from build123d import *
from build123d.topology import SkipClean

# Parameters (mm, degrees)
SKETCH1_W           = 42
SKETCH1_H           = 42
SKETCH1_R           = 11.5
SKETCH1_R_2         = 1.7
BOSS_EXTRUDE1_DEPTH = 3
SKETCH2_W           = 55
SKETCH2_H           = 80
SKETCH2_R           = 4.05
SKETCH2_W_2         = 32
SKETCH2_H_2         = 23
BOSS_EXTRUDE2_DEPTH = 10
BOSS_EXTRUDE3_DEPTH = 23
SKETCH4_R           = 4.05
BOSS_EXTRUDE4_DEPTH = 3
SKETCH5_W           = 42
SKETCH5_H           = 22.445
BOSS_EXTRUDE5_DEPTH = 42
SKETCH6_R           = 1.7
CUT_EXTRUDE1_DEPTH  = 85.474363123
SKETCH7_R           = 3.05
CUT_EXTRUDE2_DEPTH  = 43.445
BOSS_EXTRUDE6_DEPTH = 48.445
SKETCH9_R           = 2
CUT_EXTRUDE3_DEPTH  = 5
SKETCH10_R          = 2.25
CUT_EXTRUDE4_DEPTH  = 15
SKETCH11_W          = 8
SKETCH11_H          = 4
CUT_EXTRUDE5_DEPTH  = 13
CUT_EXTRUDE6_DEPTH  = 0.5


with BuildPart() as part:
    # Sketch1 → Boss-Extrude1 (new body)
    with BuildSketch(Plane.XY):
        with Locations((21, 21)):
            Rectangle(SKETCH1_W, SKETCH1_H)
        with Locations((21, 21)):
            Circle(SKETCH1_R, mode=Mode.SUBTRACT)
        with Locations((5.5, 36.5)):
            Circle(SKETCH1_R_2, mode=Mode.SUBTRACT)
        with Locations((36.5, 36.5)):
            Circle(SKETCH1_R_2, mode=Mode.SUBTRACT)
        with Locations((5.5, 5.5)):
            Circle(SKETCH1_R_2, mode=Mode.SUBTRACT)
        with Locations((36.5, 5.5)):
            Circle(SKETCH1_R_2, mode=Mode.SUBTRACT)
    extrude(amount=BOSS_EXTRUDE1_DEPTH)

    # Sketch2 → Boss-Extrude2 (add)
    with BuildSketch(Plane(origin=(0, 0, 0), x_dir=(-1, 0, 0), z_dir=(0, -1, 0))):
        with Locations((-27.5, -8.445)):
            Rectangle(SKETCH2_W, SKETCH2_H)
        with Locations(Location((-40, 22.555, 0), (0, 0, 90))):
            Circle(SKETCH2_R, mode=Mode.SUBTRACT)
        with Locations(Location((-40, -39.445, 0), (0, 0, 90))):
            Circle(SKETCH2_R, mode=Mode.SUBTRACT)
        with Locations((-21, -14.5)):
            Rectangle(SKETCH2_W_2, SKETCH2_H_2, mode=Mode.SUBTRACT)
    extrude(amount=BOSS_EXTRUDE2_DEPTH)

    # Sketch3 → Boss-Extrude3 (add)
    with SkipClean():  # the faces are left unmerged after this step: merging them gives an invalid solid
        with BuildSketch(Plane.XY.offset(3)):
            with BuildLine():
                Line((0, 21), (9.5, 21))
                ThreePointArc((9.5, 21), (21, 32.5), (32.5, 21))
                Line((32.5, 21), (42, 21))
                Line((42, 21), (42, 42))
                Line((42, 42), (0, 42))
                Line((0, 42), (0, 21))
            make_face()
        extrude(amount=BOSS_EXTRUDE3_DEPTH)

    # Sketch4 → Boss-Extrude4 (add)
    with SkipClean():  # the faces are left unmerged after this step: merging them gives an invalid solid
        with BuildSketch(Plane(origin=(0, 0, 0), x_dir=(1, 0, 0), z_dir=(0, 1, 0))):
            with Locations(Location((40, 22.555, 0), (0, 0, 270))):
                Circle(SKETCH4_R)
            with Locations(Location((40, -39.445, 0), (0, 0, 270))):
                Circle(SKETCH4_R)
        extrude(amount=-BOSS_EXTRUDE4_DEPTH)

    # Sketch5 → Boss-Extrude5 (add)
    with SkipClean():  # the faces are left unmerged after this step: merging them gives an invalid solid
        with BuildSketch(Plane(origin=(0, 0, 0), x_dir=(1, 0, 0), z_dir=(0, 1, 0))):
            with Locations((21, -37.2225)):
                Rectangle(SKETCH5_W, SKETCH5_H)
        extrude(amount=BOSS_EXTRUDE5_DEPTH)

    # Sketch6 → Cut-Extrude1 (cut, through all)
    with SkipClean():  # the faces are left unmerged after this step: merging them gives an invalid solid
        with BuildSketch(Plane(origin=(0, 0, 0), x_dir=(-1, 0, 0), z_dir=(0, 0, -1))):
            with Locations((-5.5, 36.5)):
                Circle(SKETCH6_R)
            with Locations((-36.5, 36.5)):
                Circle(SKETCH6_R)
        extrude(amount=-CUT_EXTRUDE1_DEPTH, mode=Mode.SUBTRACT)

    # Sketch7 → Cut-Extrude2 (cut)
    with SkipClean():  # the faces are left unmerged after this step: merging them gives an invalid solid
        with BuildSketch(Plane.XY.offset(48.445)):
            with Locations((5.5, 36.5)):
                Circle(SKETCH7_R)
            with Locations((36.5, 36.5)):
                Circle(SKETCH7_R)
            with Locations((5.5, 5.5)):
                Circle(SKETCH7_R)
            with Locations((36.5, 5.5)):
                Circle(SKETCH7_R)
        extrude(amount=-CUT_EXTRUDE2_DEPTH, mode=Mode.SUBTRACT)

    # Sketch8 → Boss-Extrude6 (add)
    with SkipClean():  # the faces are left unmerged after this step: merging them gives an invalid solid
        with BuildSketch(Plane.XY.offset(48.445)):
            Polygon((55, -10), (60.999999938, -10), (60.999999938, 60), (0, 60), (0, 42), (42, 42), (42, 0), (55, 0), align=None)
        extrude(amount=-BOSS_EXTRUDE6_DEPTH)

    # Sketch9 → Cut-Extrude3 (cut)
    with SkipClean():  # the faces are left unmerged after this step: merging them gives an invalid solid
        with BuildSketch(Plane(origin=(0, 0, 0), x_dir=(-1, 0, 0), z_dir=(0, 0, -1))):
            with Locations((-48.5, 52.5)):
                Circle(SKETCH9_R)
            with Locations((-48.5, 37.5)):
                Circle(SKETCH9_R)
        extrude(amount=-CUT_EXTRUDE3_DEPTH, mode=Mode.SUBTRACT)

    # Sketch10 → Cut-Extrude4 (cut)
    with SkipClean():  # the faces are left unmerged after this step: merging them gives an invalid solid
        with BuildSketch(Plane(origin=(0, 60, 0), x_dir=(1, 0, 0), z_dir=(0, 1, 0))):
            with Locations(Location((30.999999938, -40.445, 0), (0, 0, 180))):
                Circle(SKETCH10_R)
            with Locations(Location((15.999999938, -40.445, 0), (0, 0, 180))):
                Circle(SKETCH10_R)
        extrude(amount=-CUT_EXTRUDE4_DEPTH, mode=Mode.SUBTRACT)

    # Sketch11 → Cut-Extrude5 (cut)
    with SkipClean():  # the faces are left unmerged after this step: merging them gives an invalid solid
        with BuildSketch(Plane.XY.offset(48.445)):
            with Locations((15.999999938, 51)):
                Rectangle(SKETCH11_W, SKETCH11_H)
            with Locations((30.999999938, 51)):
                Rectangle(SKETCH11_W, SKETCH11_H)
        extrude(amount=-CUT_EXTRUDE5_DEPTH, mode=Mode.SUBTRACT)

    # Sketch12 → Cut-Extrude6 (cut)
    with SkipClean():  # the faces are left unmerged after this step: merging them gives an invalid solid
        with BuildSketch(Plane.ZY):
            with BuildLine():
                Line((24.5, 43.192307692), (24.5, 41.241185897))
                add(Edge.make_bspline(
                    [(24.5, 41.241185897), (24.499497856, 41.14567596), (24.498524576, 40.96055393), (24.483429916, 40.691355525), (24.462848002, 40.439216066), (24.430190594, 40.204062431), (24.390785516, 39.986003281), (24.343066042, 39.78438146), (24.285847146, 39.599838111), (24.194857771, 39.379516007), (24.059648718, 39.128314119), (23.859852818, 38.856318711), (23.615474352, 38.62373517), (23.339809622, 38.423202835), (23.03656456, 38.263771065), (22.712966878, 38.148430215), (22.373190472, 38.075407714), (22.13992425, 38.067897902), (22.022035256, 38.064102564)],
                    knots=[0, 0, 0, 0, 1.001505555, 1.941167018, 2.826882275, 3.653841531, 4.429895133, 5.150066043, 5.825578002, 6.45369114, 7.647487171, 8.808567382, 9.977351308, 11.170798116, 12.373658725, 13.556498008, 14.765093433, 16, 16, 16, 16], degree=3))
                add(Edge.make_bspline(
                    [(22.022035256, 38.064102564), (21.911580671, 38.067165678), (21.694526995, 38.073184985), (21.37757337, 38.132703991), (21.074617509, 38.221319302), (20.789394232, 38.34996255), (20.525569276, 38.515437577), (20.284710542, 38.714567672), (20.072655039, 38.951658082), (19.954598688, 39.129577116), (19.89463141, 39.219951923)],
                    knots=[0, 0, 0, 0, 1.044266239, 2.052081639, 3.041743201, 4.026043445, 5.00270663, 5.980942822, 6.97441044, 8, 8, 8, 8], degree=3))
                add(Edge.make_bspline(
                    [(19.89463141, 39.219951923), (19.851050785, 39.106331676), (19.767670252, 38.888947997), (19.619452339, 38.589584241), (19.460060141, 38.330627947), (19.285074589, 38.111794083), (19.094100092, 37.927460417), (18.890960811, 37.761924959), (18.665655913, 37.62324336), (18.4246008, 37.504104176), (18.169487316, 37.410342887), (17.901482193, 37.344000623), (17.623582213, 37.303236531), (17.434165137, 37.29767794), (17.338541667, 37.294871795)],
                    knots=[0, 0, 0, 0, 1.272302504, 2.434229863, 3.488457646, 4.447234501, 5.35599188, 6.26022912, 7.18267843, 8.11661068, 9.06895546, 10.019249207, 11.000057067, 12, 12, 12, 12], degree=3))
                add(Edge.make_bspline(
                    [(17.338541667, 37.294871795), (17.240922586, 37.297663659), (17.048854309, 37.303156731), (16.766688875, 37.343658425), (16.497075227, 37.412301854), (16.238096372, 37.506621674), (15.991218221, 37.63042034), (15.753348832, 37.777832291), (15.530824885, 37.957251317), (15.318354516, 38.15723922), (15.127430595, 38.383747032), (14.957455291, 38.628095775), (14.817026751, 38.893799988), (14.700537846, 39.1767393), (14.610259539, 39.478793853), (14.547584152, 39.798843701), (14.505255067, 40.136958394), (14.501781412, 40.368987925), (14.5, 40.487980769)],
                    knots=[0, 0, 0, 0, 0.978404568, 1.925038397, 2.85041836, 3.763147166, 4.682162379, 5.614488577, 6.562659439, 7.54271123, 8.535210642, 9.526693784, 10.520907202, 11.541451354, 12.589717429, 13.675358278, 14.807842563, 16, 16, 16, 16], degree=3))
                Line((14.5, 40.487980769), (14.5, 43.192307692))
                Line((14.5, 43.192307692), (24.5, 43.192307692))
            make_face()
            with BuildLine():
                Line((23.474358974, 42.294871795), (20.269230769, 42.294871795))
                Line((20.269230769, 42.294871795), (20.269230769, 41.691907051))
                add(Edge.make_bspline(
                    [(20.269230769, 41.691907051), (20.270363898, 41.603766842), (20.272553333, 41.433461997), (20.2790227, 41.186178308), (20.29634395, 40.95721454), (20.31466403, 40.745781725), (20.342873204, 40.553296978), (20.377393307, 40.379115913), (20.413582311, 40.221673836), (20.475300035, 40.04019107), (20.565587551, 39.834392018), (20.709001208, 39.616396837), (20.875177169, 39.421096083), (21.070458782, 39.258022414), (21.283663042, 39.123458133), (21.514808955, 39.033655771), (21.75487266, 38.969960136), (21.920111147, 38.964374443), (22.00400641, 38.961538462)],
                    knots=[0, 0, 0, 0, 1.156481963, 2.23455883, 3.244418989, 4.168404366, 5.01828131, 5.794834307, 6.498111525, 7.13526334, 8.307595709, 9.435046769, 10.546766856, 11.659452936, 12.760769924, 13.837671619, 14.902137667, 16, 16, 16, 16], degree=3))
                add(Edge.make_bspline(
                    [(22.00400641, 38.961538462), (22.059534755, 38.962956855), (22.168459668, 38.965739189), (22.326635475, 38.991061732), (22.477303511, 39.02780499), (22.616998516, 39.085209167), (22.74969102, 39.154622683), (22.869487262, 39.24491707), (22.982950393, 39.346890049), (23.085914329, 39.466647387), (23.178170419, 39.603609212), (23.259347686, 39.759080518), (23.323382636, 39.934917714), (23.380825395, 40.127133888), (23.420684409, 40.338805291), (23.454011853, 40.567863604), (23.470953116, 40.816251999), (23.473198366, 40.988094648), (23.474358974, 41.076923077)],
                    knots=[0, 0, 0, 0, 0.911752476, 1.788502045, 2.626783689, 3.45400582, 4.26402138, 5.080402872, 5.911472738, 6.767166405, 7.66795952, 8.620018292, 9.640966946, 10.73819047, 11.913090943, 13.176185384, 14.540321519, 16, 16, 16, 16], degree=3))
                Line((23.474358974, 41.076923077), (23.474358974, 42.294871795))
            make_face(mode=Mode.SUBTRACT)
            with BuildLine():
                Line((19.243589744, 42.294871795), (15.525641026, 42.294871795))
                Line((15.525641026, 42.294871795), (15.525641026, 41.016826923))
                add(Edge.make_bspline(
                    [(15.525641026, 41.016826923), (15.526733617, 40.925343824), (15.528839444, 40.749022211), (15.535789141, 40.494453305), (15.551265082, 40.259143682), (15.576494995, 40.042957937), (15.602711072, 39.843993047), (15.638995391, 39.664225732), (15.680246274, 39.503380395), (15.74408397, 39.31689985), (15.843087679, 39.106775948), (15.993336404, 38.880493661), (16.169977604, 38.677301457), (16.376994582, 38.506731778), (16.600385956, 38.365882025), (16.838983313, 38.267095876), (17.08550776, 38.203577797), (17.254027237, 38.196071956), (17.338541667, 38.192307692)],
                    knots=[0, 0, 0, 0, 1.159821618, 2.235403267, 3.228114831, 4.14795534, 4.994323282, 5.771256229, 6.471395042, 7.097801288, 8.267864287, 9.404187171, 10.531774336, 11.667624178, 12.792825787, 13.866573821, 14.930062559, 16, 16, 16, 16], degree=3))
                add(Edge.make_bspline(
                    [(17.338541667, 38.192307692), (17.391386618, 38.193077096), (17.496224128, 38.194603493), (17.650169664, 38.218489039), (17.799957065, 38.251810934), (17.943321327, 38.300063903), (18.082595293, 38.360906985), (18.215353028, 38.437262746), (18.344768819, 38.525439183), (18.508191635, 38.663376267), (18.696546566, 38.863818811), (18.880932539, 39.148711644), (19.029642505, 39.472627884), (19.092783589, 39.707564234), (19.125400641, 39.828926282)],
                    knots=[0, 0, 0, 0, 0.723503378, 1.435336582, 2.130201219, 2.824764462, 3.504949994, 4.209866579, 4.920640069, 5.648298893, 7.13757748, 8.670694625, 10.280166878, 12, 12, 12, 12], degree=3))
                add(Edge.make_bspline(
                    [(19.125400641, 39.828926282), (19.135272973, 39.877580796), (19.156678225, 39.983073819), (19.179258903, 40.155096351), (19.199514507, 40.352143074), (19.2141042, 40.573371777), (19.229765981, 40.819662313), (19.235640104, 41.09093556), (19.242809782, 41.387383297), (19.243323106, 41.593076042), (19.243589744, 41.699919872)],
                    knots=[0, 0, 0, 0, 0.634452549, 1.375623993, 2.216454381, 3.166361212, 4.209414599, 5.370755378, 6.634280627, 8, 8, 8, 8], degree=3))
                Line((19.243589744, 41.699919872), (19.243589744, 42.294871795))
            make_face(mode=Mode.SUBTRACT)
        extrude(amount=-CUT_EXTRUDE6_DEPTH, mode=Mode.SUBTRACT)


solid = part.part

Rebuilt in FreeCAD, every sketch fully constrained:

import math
import FreeCAD as App
import Part
import Sketcher

doc = App.newDocument("Part")
body = doc.addObject("PartDesign::Body", "Body")

# Sketch on XY plane
sketch1 = doc.addObject("Sketcher::SketchObject", "Sketch")
body.addObject(sketch1)
sketch1.AttachmentSupport = (doc.XY_Plane, [""])
sketch1.MapMode = "FlatFace"
sketch1.addGeometry(Part.LineSegment(App.Vector(0, 42, 0), App.Vector(0, 0, 0)), False)
sketch1.addGeometry(Part.LineSegment(App.Vector(0, 0, 0), App.Vector(42, 0, 0)), False)
sketch1.addGeometry(Part.LineSegment(App.Vector(42, 0, 0), App.Vector(42, 42, 0)), False)
sketch1.addGeometry(Part.LineSegment(App.Vector(42, 42, 0), App.Vector(0, 42, 0)), False)
sketch1.addGeometry(Part.Circle(App.Vector(5.5, 5.5, 0), App.Vector(0, 0, 1), 1.7), False)
sketch1.addGeometry(Part.Circle(App.Vector(36.5, 5.5, 0), App.Vector(0, 0, 1), 1.7), False)
sketch1.addGeometry(Part.Circle(App.Vector(5.5, 36.5, 0), App.Vector(0, 0, 1), 1.7), False)
sketch1.addGeometry(Part.Circle(App.Vector(21, 21, 0), App.Vector(0, 0, 1), 11.5), False)
sketch1.addGeometry(Part.Circle(App.Vector(36.5, 36.5, 0), App.Vector(0, 0, 1), 1.7), False)
sketch1.addConstraint(Sketcher.Constraint("Coincident", 0, 2, 1, 1))
sketch1.addConstraint(Sketcher.Constraint("Coincident", 1, 2, 2, 1))
sketch1.addConstraint(Sketcher.Constraint("Coincident", 2, 2, 3, 1))
sketch1.addConstraint(Sketcher.Constraint("Coincident", 3, 2, 0, 1))
sketch1.addConstraint(Sketcher.Constraint("Vertical", 0))
sketch1.addConstraint(Sketcher.Constraint("Horizontal", 1))
sketch1.addConstraint(Sketcher.Constraint("Vertical", 2))
sketch1.addConstraint(Sketcher.Constraint("Horizontal", 3))
sketch1.addConstraint(Sketcher.Constraint("Coincident", 0, 2, -1, 1))
sketch1.addConstraint(Sketcher.Constraint("Equal", 4, 5))
sketch1.addConstraint(Sketcher.Constraint("Equal", 5, 6))
sketch1.addConstraint(Sketcher.Constraint("Equal", 6, 8))
sketch1.addConstraint(Sketcher.Constraint("Horizontal", 4, 3, 5, 3))
sketch1.addConstraint(Sketcher.Constraint("Horizontal", 6, 3, 8, 3))
sketch1.addConstraint(Sketcher.Constraint("Vertical", 4, 3, 6, 3))
sketch1.addConstraint(Sketcher.Constraint("Vertical", 5, 3, 8, 3))
sketch1.addConstraint(Sketcher.Constraint("Equal", 3, 0))
sketch1.addConstraint(Sketcher.Constraint("Diameter", 7, 23.0))
sketch1.addConstraint(Sketcher.Constraint("Diameter", 4, 3.4))
sketch1.addConstraint(Sketcher.Constraint("DistanceX", 1, 1, 1, 2, 42.0))
sketch1.addConstraint(Sketcher.Constraint("DistanceX", -1, 1, 7, 3, 21.0))
sketch1.addConstraint(Sketcher.Constraint("DistanceY", -1, 1, 7, 3, 21.0))
sketch1.addConstraint(Sketcher.Constraint("DistanceX", 4, 3, 5, 3, 31.0))
sketch1.addConstraint(Sketcher.Constraint("DistanceY", 4, 3, 6, 3, 31.0))
sketch1.addConstraint(Sketcher.Constraint("DistanceX", -1, 1, 4, 3, 5.5))
sketch1.addConstraint(Sketcher.Constraint("DistanceY", -1, 1, 4, 3, 5.5))
pad1 = doc.addObject("PartDesign::Pad", "Pad")
body.addObject(pad1)
pad1.Profile = sketch1
pad1.Length = 3

# Sketch on XZ plane
sketch2 = doc.addObject("Sketcher::SketchObject", "Sketch001")
body.addObject(sketch2)
sketch2.AttachmentSupport = (doc.XZ_Plane, [""])
sketch2.MapMode = "FlatFace"
sketch2.addGeometry(Part.LineSegment(App.Vector(55, -31.6, 0), App.Vector(55, 48.4, 0)), False)
sketch2.addGeometry(Part.LineSegment(App.Vector(55, 48.4, 0), App.Vector(0, 48.4, 0)), False)
sketch2.addGeometry(Part.LineSegment(App.Vector(0, 48.4, 0), App.Vector(0, -31.6, 0)), False)
sketch2.addGeometry(Part.LineSegment(App.Vector(0, -31.6, 0), App.Vector(55, -31.6, 0)), False)
sketch2.addGeometry(Part.Circle(App.Vector(40, 39.4, 0), App.Vector(0, 0, 1), 4), False)
sketch2.addGeometry(Part.LineSegment(App.Vector(5, 26, 0), App.Vector(37, 26, 0)), False)
sketch2.addGeometry(Part.LineSegment(App.Vector(37, 26, 0), App.Vector(37, 3, 0)), False)
sketch2.addGeometry(Part.LineSegment(App.Vector(37, 3, 0), App.Vector(5, 3, 0)), False)
sketch2.addGeometry(Part.LineSegment(App.Vector(5, 3, 0), App.Vector(5, 26, 0)), False)
sketch2.addGeometry(Part.Circle(App.Vector(40, -22.6, 0), App.Vector(0, 0, 1), 4), False)
sketch2.addConstraint(Sketcher.Constraint("Coincident", 0, 2, 1, 1))
sketch2.addConstraint(Sketcher.Constraint("Coincident", 1, 2, 2, 1))
sketch2.addConstraint(Sketcher.Constraint("Coincident", 2, 2, 3, 1))
sketch2.addConstraint(Sketcher.Constraint("Coincident", 3, 2, 0, 1))
sketch2.addConstraint(Sketcher.Constraint("Coincident", 5, 2, 6, 1))
sketch2.addConstraint(Sketcher.Constraint("Coincident", 6, 2, 7, 1))
sketch2.addConstraint(Sketcher.Constraint("Coincident", 7, 2, 8, 1))
sketch2.addConstraint(Sketcher.Constraint("Coincident", 8, 2, 5, 1))
sketch2.addConstraint(Sketcher.Constraint("Vertical", 0))
sketch2.addConstraint(Sketcher.Constraint("Horizontal", 1))
sketch2.addConstraint(Sketcher.Constraint("Vertical", 2))
sketch2.addConstraint(Sketcher.Constraint("Horizontal", 3))
sketch2.addConstraint(Sketcher.Constraint("Horizontal", 5))
sketch2.addConstraint(Sketcher.Constraint("Vertical", 6))
sketch2.addConstraint(Sketcher.Constraint("Horizontal", 7))
sketch2.addConstraint(Sketcher.Constraint("Vertical", 8))
sketch2.addConstraint(Sketcher.Constraint("Equal", 4, 9))
sketch2.addConstraint(Sketcher.Constraint("PointOnObject", 1, 2, -2))
sketch2.addConstraint(Sketcher.Constraint("Vertical", 4, 3, 9, 3))
sketch2.addConstraint(Sketcher.Constraint("Diameter", 4, 8.1))
sketch2.addConstraint(Sketcher.Constraint("DistanceX", 1, 2, 1, 1, 55.0))
sketch2.addConstraint(Sketcher.Constraint("DistanceX", 5, 1, 5, 2, 32.0))
sketch2.addConstraint(Sketcher.Constraint("DistanceY", 0, 1, 0, 2, 80.0))
sketch2.addConstraint(Sketcher.Constraint("DistanceY", 6, 2, 6, 1, 23.0))
sketch2.addConstraint(Sketcher.Constraint("DistanceX", -1, 1, 4, 3, 40.0))
sketch2.addConstraint(Sketcher.Constraint("DistanceX", -1, 1, 5, 2, 37.0))
sketch2.addConstraint(Sketcher.Constraint("DistanceY", -1, 1, 5, 2, 26.0))
sketch2.addConstraint(Sketcher.Constraint("DistanceY", 9, 3, 4, 3, 62.0))
sketch2.addConstraint(Sketcher.Constraint("DistanceY", 4, 3, 0, 2, 9.0))
sketch2.addConstraint(Sketcher.Constraint("DistanceY", -1, 1, 4, 3, 39.445))
pad2 = doc.addObject("PartDesign::Pad", "Pad001")
body.addObject(pad2)
pad2.Profile = sketch2
pad2.Length = 10

# Sketch on XY plane
sketch3 = doc.addObject("Sketcher::SketchObject", "Sketch002")
body.addObject(sketch3)
sketch3.AttachmentSupport = (doc.XY_Plane, [""])
sketch3.MapMode = "FlatFace"
sketch3.AttachmentOffset = App.Placement(App.Vector(0, 0, 3), App.Rotation())
sketch3.addGeometry(Part.LineSegment(App.Vector(0, 21, 0), App.Vector(10, 21, 0)), False)
sketch3.addGeometry(Part.ArcOfCircle(Part.Circle(App.Vector(21, 21, 0), App.Vector(0, 0, 1), 12), math.radians(0), math.radians(180)), False)
sketch3.addGeometry(Part.LineSegment(App.Vector(32, 21, 0), App.Vector(42, 21, 0)), False)
sketch3.addGeometry(Part.LineSegment(App.Vector(42, 21, 0), App.Vector(42, 42, 0)), False)
sketch3.addGeometry(Part.LineSegment(App.Vector(42, 42, 0), App.Vector(0, 42, 0)), False)
sketch3.addGeometry(Part.LineSegment(App.Vector(0, 42, 0), App.Vector(0, 21, 0)), False)
sketch3.addConstraint(Sketcher.Constraint("Coincident", 0, 2, 1, 2))
sketch3.addConstraint(Sketcher.Constraint("Coincident", 1, 1, 2, 1))
sketch3.addConstraint(Sketcher.Constraint("Coincident", 2, 2, 3, 1))
sketch3.addConstraint(Sketcher.Constraint("Coincident", 3, 2, 4, 1))
sketch3.addConstraint(Sketcher.Constraint("Coincident", 4, 2, 5, 1))
sketch3.addConstraint(Sketcher.Constraint("Coincident", 5, 2, 0, 1))
sketch3.addConstraint(Sketcher.Constraint("Horizontal", 0))
sketch3.addConstraint(Sketcher.Constraint("Horizontal", 2))
sketch3.addConstraint(Sketcher.Constraint("Vertical", 3))
sketch3.addConstraint(Sketcher.Constraint("Horizontal", 4))
sketch3.addConstraint(Sketcher.Constraint("Vertical", 5))
sketch3.addConstraint(Sketcher.Constraint("PointOnObject", 4, 2, -2))
sketch3.addConstraint(Sketcher.Constraint("Horizontal", 1, 3, 0, 2))
sketch3.addConstraint(Sketcher.Constraint("Horizontal", 0, 2, 1, 1))
sketch3.addConstraint(Sketcher.Constraint("Equal", 0, 2))
sketch3.addConstraint(Sketcher.Constraint("Radius", 1, 11.5))
sketch3.addConstraint(Sketcher.Constraint("DistanceX", 4, 2, 4, 1, 42.0))
sketch3.addConstraint(Sketcher.Constraint("DistanceY", 3, 1, 3, 2, 21.0))
sketch3.addConstraint(Sketcher.Constraint("DistanceY", -1, 1, 1, 3, 21.0))
pad3 = doc.addObject("PartDesign::Pad", "Pad002")
body.addObject(pad3)
pad3.Profile = sketch3
pad3.Length = 23

# Sketch on XZ plane
sketch4 = doc.addObject("Sketcher::SketchObject", "Sketch003")
body.addObject(sketch4)
sketch4.AttachmentSupport = (doc.XZ_Plane, [""])
sketch4.MapMode = "FlatFace"
sketch4.addGeometry(Part.Circle(App.Vector(40, -22.6, 0), App.Vector(0, 0, 1), 4), False)
sketch4.addGeometry(Part.Circle(App.Vector(40, 39.4, 0), App.Vector(0, 0, 1), 4), False)
sketch4.addConstraint(Sketcher.Constraint("Equal", 0, 1))
sketch4.addConstraint(Sketcher.Constraint("Vertical", 0, 3, 1, 3))
sketch4.addConstraint(Sketcher.Constraint("Diameter", 0, 8.1))
sketch4.addConstraint(Sketcher.Constraint("DistanceX", -1, 1, 0, 3, 40.0))
sketch4.addConstraint(Sketcher.Constraint("DistanceY", 0, 3, 1, 3, 62.0))
sketch4.addConstraint(Sketcher.Constraint("DistanceY", 0, 3, -1, 1, 22.555))
pad4 = doc.addObject("PartDesign::Pad", "Pad003")
body.addObject(pad4)
pad4.Profile = sketch4
pad4.Length = 3

# Sketch on XZ plane
sketch5 = doc.addObject("Sketcher::SketchObject", "Sketch004")
body.addObject(sketch5)
sketch5.AttachmentSupport = (doc.XZ_Plane, [""])
sketch5.MapMode = "FlatFace"
sketch5.addGeometry(Part.LineSegment(App.Vector(0, 26, 0), App.Vector(0, 48, 0)), False)
sketch5.addGeometry(Part.LineSegment(App.Vector(0, 48, 0), App.Vector(42, 48, 0)), False)
sketch5.addGeometry(Part.LineSegment(App.Vector(42, 48, 0), App.Vector(42, 26, 0)), False)
sketch5.addGeometry(Part.LineSegment(App.Vector(42, 26, 0), App.Vector(0, 26, 0)), False)
sketch5.addConstraint(Sketcher.Constraint("Coincident", 0, 2, 1, 1))
sketch5.addConstraint(Sketcher.Constraint("Coincident", 1, 2, 2, 1))
sketch5.addConstraint(Sketcher.Constraint("Coincident", 2, 2, 3, 1))
sketch5.addConstraint(Sketcher.Constraint("Coincident", 3, 2, 0, 1))
sketch5.addConstraint(Sketcher.Constraint("Vertical", 0))
sketch5.addConstraint(Sketcher.Constraint("Horizontal", 1))
sketch5.addConstraint(Sketcher.Constraint("Vertical", 2))
sketch5.addConstraint(Sketcher.Constraint("Horizontal", 3))
sketch5.addConstraint(Sketcher.Constraint("PointOnObject", 0, 2, -2))
sketch5.addConstraint(Sketcher.Constraint("DistanceX", 1, 1, 1, 2, 42.0))
sketch5.addConstraint(Sketcher.Constraint("DistanceY", -1, 1, 2, 2, 26.0))
sketch5.addConstraint(Sketcher.Constraint("DistanceY", 0, 1, 0, 2, 22.445))
pad5 = doc.addObject("PartDesign::Pad", "Pad004")
body.addObject(pad5)
pad5.Profile = sketch5
pad5.Length = 42
pad5.Reversed = True

# Sketch on XY plane
sketch6 = doc.addObject("Sketcher::SketchObject", "Sketch005")
body.addObject(sketch6)
sketch6.AttachmentSupport = (doc.XY_Plane, [""])
sketch6.MapMode = "FlatFace"
sketch6.addGeometry(Part.Circle(App.Vector(5.5, 36.5, 0), App.Vector(0, 0, 1), 1.7), False)
sketch6.addGeometry(Part.Circle(App.Vector(36.5, 36.5, 0), App.Vector(0, 0, 1), 1.7), False)
sketch6.addConstraint(Sketcher.Constraint("Equal", 0, 1))
sketch6.addConstraint(Sketcher.Constraint("Horizontal", 0, 3, 1, 3))
sketch6.addConstraint(Sketcher.Constraint("Diameter", 0, 3.4))
sketch6.addConstraint(Sketcher.Constraint("DistanceX", 0, 3, 1, 3, 31.0))
sketch6.addConstraint(Sketcher.Constraint("DistanceX", -1, 1, 0, 3, 5.5))
sketch6.addConstraint(Sketcher.Constraint("DistanceY", -1, 1, 0, 3, 36.5))
pocket1 = doc.addObject("PartDesign::Pocket", "Pocket")
body.addObject(pocket1)
pocket1.Profile = sketch6
pocket1.Type = "ThroughAll"
pocket1.Reversed = True

# Sketch on XY plane
sketch7 = doc.addObject("Sketcher::SketchObject", "Sketch006")
body.addObject(sketch7)
sketch7.AttachmentSupport = (doc.XY_Plane, [""])
sketch7.MapMode = "FlatFace"
sketch7.AttachmentOffset = App.Placement(App.Vector(0, 0, 48.445), App.Rotation())
sketch7.addGeometry(Part.Circle(App.Vector(5.5, 36.5, 0), App.Vector(0, 0, 1), 3), False)
sketch7.addGeometry(Part.Circle(App.Vector(36.5, 36.5, 0), App.Vector(0, 0, 1), 3), False)
sketch7.addGeometry(Part.Circle(App.Vector(5.5, 5.5, 0), App.Vector(0, 0, 1), 3), False)
sketch7.addGeometry(Part.Circle(App.Vector(36.5, 5.5, 0), App.Vector(0, 0, 1), 3), False)
sketch7.addConstraint(Sketcher.Constraint("Equal", 0, 1))
sketch7.addConstraint(Sketcher.Constraint("Equal", 1, 2))
sketch7.addConstraint(Sketcher.Constraint("Equal", 2, 3))
sketch7.addConstraint(Sketcher.Constraint("Horizontal", 0, 3, 1, 3))
sketch7.addConstraint(Sketcher.Constraint("Horizontal", 2, 3, 3, 3))
sketch7.addConstraint(Sketcher.Constraint("Vertical", 0, 3, 2, 3))
sketch7.addConstraint(Sketcher.Constraint("Vertical", 1, 3, 3, 3))
sketch7.addConstraint(Sketcher.Constraint("Diameter", 0, 6.1))
sketch7.addConstraint(Sketcher.Constraint("DistanceX", 0, 3, 1, 3, 31.0))
sketch7.addConstraint(Sketcher.Constraint("DistanceY", 2, 3, 0, 3, 31.0))
sketch7.addConstraint(Sketcher.Constraint("DistanceX", -1, 1, 0, 3, 5.5))
sketch7.addConstraint(Sketcher.Constraint("DistanceY", -1, 1, 0, 3, 36.5))
pocket2 = doc.addObject("PartDesign::Pocket", "Pocket001")
body.addObject(pocket2)
pocket2.Profile = sketch7
pocket2.Length = 43.445

# Sketch on XY plane
sketch8 = doc.addObject("Sketcher::SketchObject", "Sketch007")
body.addObject(sketch8)
sketch8.AttachmentSupport = (doc.XY_Plane, [""])
sketch8.MapMode = "FlatFace"
sketch8.AttachmentOffset = App.Placement(App.Vector(0, 0, 48.445), App.Rotation())
sketch8.addGeometry(Part.LineSegment(App.Vector(55, -10, 0), App.Vector(61, -10, 0)), False)
sketch8.addGeometry(Part.LineSegment(App.Vector(61, -10, 0), App.Vector(61, 60, 0)), False)
sketch8.addGeometry(Part.LineSegment(App.Vector(61, 60, 0), App.Vector(0, 60, 0)), False)
sketch8.addGeometry(Part.LineSegment(App.Vector(0, 60, 0), App.Vector(0, 42, 0)), False)
sketch8.addGeometry(Part.LineSegment(App.Vector(0, 42, 0), App.Vector(42, 42, 0)), False)
sketch8.addGeometry(Part.LineSegment(App.Vector(42, 42, 0), App.Vector(42, 0, 0)), False)
sketch8.addGeometry(Part.LineSegment(App.Vector(42, 0, 0), App.Vector(55, 0, 0)), False)
sketch8.addGeometry(Part.LineSegment(App.Vector(55, 0, 0), App.Vector(55, -10, 0)), False)
sketch8.addConstraint(Sketcher.Constraint("Coincident", 0, 2, 1, 1))
sketch8.addConstraint(Sketcher.Constraint("Coincident", 1, 2, 2, 1))
sketch8.addConstraint(Sketcher.Constraint("Coincident", 2, 2, 3, 1))
sketch8.addConstraint(Sketcher.Constraint("Coincident", 3, 2, 4, 1))
sketch8.addConstraint(Sketcher.Constraint("Coincident", 4, 2, 5, 1))
sketch8.addConstraint(Sketcher.Constraint("Coincident", 5, 2, 6, 1))
sketch8.addConstraint(Sketcher.Constraint("Coincident", 6, 2, 7, 1))
sketch8.addConstraint(Sketcher.Constraint("Coincident", 7, 2, 0, 1))
sketch8.addConstraint(Sketcher.Constraint("Horizontal", 0))
sketch8.addConstraint(Sketcher.Constraint("Vertical", 1))
sketch8.addConstraint(Sketcher.Constraint("Horizontal", 2))
sketch8.addConstraint(Sketcher.Constraint("Vertical", 3))
sketch8.addConstraint(Sketcher.Constraint("Horizontal", 4))
sketch8.addConstraint(Sketcher.Constraint("Vertical", 5))
sketch8.addConstraint(Sketcher.Constraint("Horizontal", 6))
sketch8.addConstraint(Sketcher.Constraint("Vertical", 7))
sketch8.addConstraint(Sketcher.Constraint("PointOnObject", 2, 2, -2))
sketch8.addConstraint(Sketcher.Constraint("PointOnObject", 5, 2, -1))
sketch8.addConstraint(Sketcher.Constraint("Equal", 4, 5))
sketch8.addConstraint(Sketcher.Constraint("DistanceX", 0, 1, 0, 2, 6.0))
sketch8.addConstraint(Sketcher.Constraint("DistanceX", 2, 2, 2, 1, 61.0))
sketch8.addConstraint(Sketcher.Constraint("DistanceX", 4, 1, 4, 2, 42.0))
sketch8.addConstraint(Sketcher.Constraint("DistanceY", 1, 1, 1, 2, 70.0))
sketch8.addConstraint(Sketcher.Constraint("DistanceY", 3, 2, 3, 1, 18.0))
pad6 = doc.addObject("PartDesign::Pad", "Pad005")
body.addObject(pad6)
pad6.Profile = sketch8
pad6.Length = 48.445
pad6.Reversed = True

# Sketch on XY plane
sketch9 = doc.addObject("Sketcher::SketchObject", "Sketch008")
body.addObject(sketch9)
sketch9.AttachmentSupport = (doc.XY_Plane, [""])
sketch9.MapMode = "FlatFace"
sketch9.addGeometry(Part.Circle(App.Vector(48.5, 52.5, 0), App.Vector(0, 0, 1), 2), False)
sketch9.addGeometry(Part.Circle(App.Vector(48.5, 37.5, 0), App.Vector(0, 0, 1), 2), False)
sketch9.addConstraint(Sketcher.Constraint("Equal", 0, 1))
sketch9.addConstraint(Sketcher.Constraint("Vertical", 0, 3, 1, 3))
sketch9.addConstraint(Sketcher.Constraint("Diameter", 0, 4.0))
sketch9.addConstraint(Sketcher.Constraint("DistanceY", 1, 3, 0, 3, 15.0))
sketch9.addConstraint(Sketcher.Constraint("DistanceX", -1, 1, 0, 3, 48.5))
sketch9.addConstraint(Sketcher.Constraint("DistanceY", -1, 1, 0, 3, 52.5))
pocket3 = doc.addObject("PartDesign::Pocket", "Pocket002")
body.addObject(pocket3)
pocket3.Profile = sketch9
pocket3.Length = 5
pocket3.Reversed = True

# Sketch on XZ plane
sketch10 = doc.addObject("Sketcher::SketchObject", "Sketch009")
body.addObject(sketch10)
sketch10.AttachmentSupport = (doc.XZ_Plane, [""])
sketch10.MapMode = "FlatFace"
sketch10.AttachmentOffset = App.Placement(App.Vector(0, 0, -60), App.Rotation())
sketch10.addGeometry(Part.Circle(App.Vector(31, 40.4, 0), App.Vector(0, 0, 1), 2.2), False)
sketch10.addGeometry(Part.Circle(App.Vector(16, 40.4, 0), App.Vector(0, 0, 1), 2.2), False)
sketch10.addConstraint(Sketcher.Constraint("Equal", 0, 1))
sketch10.addConstraint(Sketcher.Constraint("Horizontal", 0, 3, 1, 3))
sketch10.addConstraint(Sketcher.Constraint("Diameter", 0, 4.5))
sketch10.addConstraint(Sketcher.Constraint("DistanceX", -1, 1, 0, 3, 31.0))
sketch10.addConstraint(Sketcher.Constraint("DistanceX", -1, 1, 1, 3, 16.0))
sketch10.addConstraint(Sketcher.Constraint("DistanceY", -1, 1, 0, 3, 40.445))
pocket4 = doc.addObject("PartDesign::Pocket", "Pocket003")
body.addObject(pocket4)
pocket4.Profile = sketch10
pocket4.Length = 15
pocket4.Reversed = True

# Sketch on XY plane
sketch11 = doc.addObject("Sketcher::SketchObject", "Sketch010")
body.addObject(sketch11)
sketch11.AttachmentSupport = (doc.XY_Plane, [""])
sketch11.MapMode = "FlatFace"
sketch11.AttachmentOffset = App.Placement(App.Vector(0, 0, 48.445), App.Rotation())
sketch11.addGeometry(Part.LineSegment(App.Vector(12, 53, 0), App.Vector(12, 49, 0)), False)
sketch11.addGeometry(Part.LineSegment(App.Vector(12, 49, 0), App.Vector(20, 49, 0)), False)
sketch11.addGeometry(Part.LineSegment(App.Vector(20, 49, 0), App.Vector(20, 53, 0)), False)
sketch11.addGeometry(Part.LineSegment(App.Vector(20, 53, 0), App.Vector(12, 53, 0)), False)
sketch11.addGeometry(Part.LineSegment(App.Vector(27, 53, 0), App.Vector(27, 49, 0)), False)
sketch11.addGeometry(Part.LineSegment(App.Vector(27, 49, 0), App.Vector(35, 49, 0)), False)
sketch11.addGeometry(Part.LineSegment(App.Vector(35, 49, 0), App.Vector(35, 53, 0)), False)
sketch11.addGeometry(Part.LineSegment(App.Vector(35, 53, 0), App.Vector(27, 53, 0)), False)
sketch11.addConstraint(Sketcher.Constraint("Coincident", 0, 2, 1, 1))
sketch11.addConstraint(Sketcher.Constraint("Coincident", 1, 2, 2, 1))
sketch11.addConstraint(Sketcher.Constraint("Coincident", 2, 2, 3, 1))
sketch11.addConstraint(Sketcher.Constraint("Coincident", 3, 2, 0, 1))
sketch11.addConstraint(Sketcher.Constraint("Coincident", 4, 2, 5, 1))
sketch11.addConstraint(Sketcher.Constraint("Coincident", 5, 2, 6, 1))
sketch11.addConstraint(Sketcher.Constraint("Coincident", 6, 2, 7, 1))
sketch11.addConstraint(Sketcher.Constraint("Coincident", 7, 2, 4, 1))
sketch11.addConstraint(Sketcher.Constraint("Vertical", 0))
sketch11.addConstraint(Sketcher.Constraint("Horizontal", 1))
sketch11.addConstraint(Sketcher.Constraint("Vertical", 2))
sketch11.addConstraint(Sketcher.Constraint("Horizontal", 3))
sketch11.addConstraint(Sketcher.Constraint("Vertical", 4))
sketch11.addConstraint(Sketcher.Constraint("Horizontal", 5))
sketch11.addConstraint(Sketcher.Constraint("Vertical", 6))
sketch11.addConstraint(Sketcher.Constraint("Horizontal", 7))
sketch11.addConstraint(Sketcher.Constraint("Horizontal", 1, 2, 4, 2))
sketch11.addConstraint(Sketcher.Constraint("Horizontal", 3, 2, 6, 2))
sketch11.addConstraint(Sketcher.Constraint("Equal", 3, 5))
sketch11.addConstraint(Sketcher.Constraint("DistanceX", 1, 1, 1, 2, 8.0))
sketch11.addConstraint(Sketcher.Constraint("DistanceY", 0, 2, 0, 1, 4.0))
sketch11.addConstraint(Sketcher.Constraint("DistanceX", -1, 1, 0, 2, 12.0))
sketch11.addConstraint(Sketcher.Constraint("DistanceY", -1, 1, 0, 2, 49.0))
sketch11.addConstraint(Sketcher.Constraint("DistanceX", -1, 1, 4, 2, 27.0))
pocket5 = doc.addObject("PartDesign::Pocket", "Pocket004")
body.addObject(pocket5)
pocket5.Profile = sketch11
pocket5.Length = 13

# Sketch on YZ plane
sketch12 = doc.addObject("Sketcher::SketchObject", "Sketch011")
body.addObject(sketch12)
sketch12.AttachmentSupport = (doc.YZ_Plane, [""])
sketch12.MapMode = "FlatFace"
sketch12.addGeometry(Part.LineSegment(App.Vector(41.241186, 24.5, 0), App.Vector(43.192308, 24.5, 0)), False)
sketch12.addGeometry(Part.LineSegment(App.Vector(43.192308, 24.5, 0), App.Vector(43.192308, 14.5, 0)), False)
sketch12.addGeometry(Part.LineSegment(App.Vector(43.192308, 14.5, 0), App.Vector(40.487981, 14.5, 0)), False)
sketch12.addGeometry(Part.BSplineCurve([App.Vector(37.294872, 17.338542, 0), App.Vector(37.297664, 17.240923, 0), App.Vector(37.303157, 17.048854, 0), App.Vector(37.343658, 16.766689, 0), App.Vector(37.412302, 16.497075, 0), App.Vector(37.506622, 16.238096, 0), App.Vector(37.63042, 15.991218, 0), App.Vector(37.777832, 15.753349, 0), App.Vector(37.957251, 15.530825, 0), App.Vector(38.157239, 15.318355, 0), App.Vector(38.383747, 15.127431, 0), App.Vector(38.628096, 14.957455, 0), App.Vector(38.8938, 14.817027, 0), App.Vector(39.176739, 14.700538, 0), App.Vector(39.478794, 14.61026, 0), App.Vector(39.798844, 14.547584, 0), App.Vector(40.136958, 14.505255, 0), App.Vector(40.368988, 14.501781, 0), App.Vector(40.487981, 14.5, 0)], [4, 1, 1, 1, 1, 1, 1, 1, 1, 1, 1, 1, 1, 1, 1, 1, 4], [0, 0.978404568, 1.925038397, 2.85041836, 3.763147166, 4.682162379, 5.614488577, 6.562659439, 7.54271123, 8.535210642, 9.526693784, 10.520907202, 11.541451354, 12.589717429, 13.675358278, 14.807842563, 16], False, 3, [1, 1, 1, 1, 1, 1, 1, 1, 1, 1, 1, 1, 1, 1, 1, 1, 1, 1, 1], False), False)
sketch12.addGeometry(Part.BSplineCurve([App.Vector(39.219952, 19.894631, 0), App.Vector(39.106332, 19.851051, 0), App.Vector(38.888948, 19.76767, 0), App.Vector(38.589584, 19.619452, 0), App.Vector(38.330628, 19.46006, 0), App.Vector(38.111794, 19.285075, 0), App.Vector(37.92746, 19.0941, 0), App.Vector(37.761925, 18.890961, 0), App.Vector(37.623243, 18.665656, 0), App.Vector(37.504104, 18.424601, 0), App.Vector(37.410343, 18.169487, 0), App.Vector(37.344001, 17.901482, 0), App.Vector(37.303237, 17.623582, 0), App.Vector(37.297678, 17.434165, 0), App.Vector(37.294872, 17.338542, 0)], [4, 1, 1, 1, 1, 1, 1, 1, 1, 1, 1, 1, 4], [0, 1.272302504, 2.434229863, 3.488457646, 4.447234501, 5.35599188, 6.26022912, 7.18267843, 8.11661068, 9.06895546, 10.019249207, 11.000057067, 12], False, 3, [1, 1, 1, 1, 1, 1, 1, 1, 1, 1, 1, 1, 1, 1, 1], False), False)
sketch12.addGeometry(Part.BSplineCurve([App.Vector(38.064103, 22.022035, 0), App.Vector(38.067166, 21.911581, 0), App.Vector(38.073185, 21.694527, 0), App.Vector(38.132704, 21.377573, 0), App.Vector(38.221319, 21.074618, 0), App.Vector(38.349963, 20.789394, 0), App.Vector(38.515438, 20.525569, 0), App.Vector(38.714568, 20.284711, 0), App.Vector(38.951658, 20.072655, 0), App.Vector(39.129577, 19.954599, 0), App.Vector(39.219952, 19.894631, 0)], [4, 1, 1, 1, 1, 1, 1, 1, 4], [0, 1.044266239, 2.052081639, 3.041743201, 4.026043445, 5.00270663, 5.980942822, 6.97441044, 8], False, 3, [1, 1, 1, 1, 1, 1, 1, 1, 1, 1, 1], False), False)
sketch12.addGeometry(Part.BSplineCurve([App.Vector(41.241186, 24.5, 0), App.Vector(41.145676, 24.499498, 0), App.Vector(40.960554, 24.498525, 0), App.Vector(40.691356, 24.48343, 0), App.Vector(40.439216, 24.462848, 0), App.Vector(40.204062, 24.430191, 0), App.Vector(39.986003, 24.390786, 0), App.Vector(39.784381, 24.343066, 0), App.Vector(39.599838, 24.285847, 0), App.Vector(39.379516, 24.194858, 0), App.Vector(39.128314, 24.059649, 0), App.Vector(38.856319, 23.859853, 0), App.Vector(38.623735, 23.615474, 0), App.Vector(38.423203, 23.33981, 0), App.Vector(38.263771, 23.036565, 0), App.Vector(38.14843, 22.712967, 0), App.Vector(38.075408, 22.37319, 0), App.Vector(38.067898, 22.139924, 0), App.Vector(38.064103, 22.022035, 0)], [4, 1, 1, 1, 1, 1, 1, 1, 1, 1, 1, 1, 1, 1, 1, 1, 4], [0, 1.001505555, 1.941167018, 2.826882275, 3.653841531, 4.429895133, 5.150066043, 5.825578002, 6.45369114, 7.647487171, 8.808567382, 9.977351308, 11.170798116, 12.373658725, 13.556498008, 14.765093433, 16], False, 3, [1, 1, 1, 1, 1, 1, 1, 1, 1, 1, 1, 1, 1, 1, 1, 1, 1, 1, 1], False), False)
sketch12.addGeometry(Part.LineSegment(App.Vector(42.294872, 23.474359, 0), App.Vector(41.076923, 23.474359, 0)), False)
sketch12.addGeometry(Part.BSplineCurve([App.Vector(38.961538, 22.004006, 0), App.Vector(38.962957, 22.059535, 0), App.Vector(38.965739, 22.16846, 0), App.Vector(38.991062, 22.326635, 0), App.Vector(39.027805, 22.477304, 0), App.Vector(39.085209, 22.616999, 0), App.Vector(39.154623, 22.749691, 0), App.Vector(39.244917, 22.869487, 0), App.Vector(39.34689, 22.98295, 0), App.Vector(39.466647, 23.085914, 0), App.Vector(39.603609, 23.17817, 0), App.Vector(39.759081, 23.259348, 0), App.Vector(39.934918, 23.323383, 0), App.Vector(40.127134, 23.380825, 0), App.Vector(40.338805, 23.420684, 0), App.Vector(40.567864, 23.454012, 0), App.Vector(40.816252, 23.470953, 0), App.Vector(40.988095, 23.473198, 0), App.Vector(41.076923, 23.474359, 0)], [4, 1, 1, 1, 1, 1, 1, 1, 1, 1, 1, 1, 1, 1, 1, 1, 4], [0, 0.911752476, 1.788502045, 2.626783689, 3.45400582, 4.26402138, 5.080402872, 5.911472738, 6.767166405, 7.66795952, 8.620018292, 9.640966946, 10.73819047, 11.913090943, 13.176185384, 14.540321519, 16], False, 3, [1, 1, 1, 1, 1, 1, 1, 1, 1, 1, 1, 1, 1, 1, 1, 1, 1, 1, 1], False), False)
sketch12.addGeometry(Part.BSplineCurve([App.Vector(41.691907, 20.269231, 0), App.Vector(41.603767, 20.270364, 0), App.Vector(41.433462, 20.272553, 0), App.Vector(41.186178, 20.279023, 0), App.Vector(40.957215, 20.296344, 0), App.Vector(40.745782, 20.314664, 0), App.Vector(40.553297, 20.342873, 0), App.Vector(40.379116, 20.377393, 0), App.Vector(40.221674, 20.413582, 0), App.Vector(40.040191, 20.4753, 0), App.Vector(39.834392, 20.565588, 0), App.Vector(39.616397, 20.709001, 0), App.Vector(39.421096, 20.875177, 0), App.Vector(39.258022, 21.070459, 0), App.Vector(39.123458, 21.283663, 0), App.Vector(39.033656, 21.514809, 0), App.Vector(38.96996, 21.754873, 0), App.Vector(38.964374, 21.920111, 0), App.Vector(38.961538, 22.004006, 0)], [4, 1, 1, 1, 1, 1, 1, 1, 1, 1, 1, 1, 1, 1, 1, 1, 4], [0, 1.156481963, 2.23455883, 3.244418989, 4.168404366, 5.01828131, 5.794834307, 6.498111525, 7.13526334, 8.307595709, 9.435046769, 10.546766856, 11.659452936, 12.760769924, 13.837671619, 14.902137667, 16], False, 3, [1, 1, 1, 1, 1, 1, 1, 1, 1, 1, 1, 1, 1, 1, 1, 1, 1, 1, 1], False), False)
sketch12.addGeometry(Part.LineSegment(App.Vector(41.691907, 20.269231, 0), App.Vector(42.294872, 20.269231, 0)), False)
sketch12.addGeometry(Part.LineSegment(App.Vector(42.294872, 20.269231, 0), App.Vector(42.294872, 23.474359, 0)), False)
sketch12.addGeometry(Part.LineSegment(App.Vector(42.294872, 19.24359, 0), App.Vector(41.69992, 19.24359, 0)), False)
sketch12.addGeometry(Part.BSplineCurve([App.Vector(39.828926, 19.125401, 0), App.Vector(39.877581, 19.135273, 0), App.Vector(39.983074, 19.156678, 0), App.Vector(40.155096, 19.179259, 0), App.Vector(40.352143, 19.199515, 0), App.Vector(40.573372, 19.214104, 0), App.Vector(40.819662, 19.229766, 0), App.Vector(41.090936, 19.23564, 0), App.Vector(41.387383, 19.24281, 0), App.Vector(41.593076, 19.243323, 0), App.Vector(41.69992, 19.24359, 0)], [4, 1, 1, 1, 1, 1, 1, 1, 4], [0, 0.634452549, 1.375623993, 2.216454381, 3.166361212, 4.209414599, 5.370755378, 6.634280627, 8], False, 3, [1, 1, 1, 1, 1, 1, 1, 1, 1, 1, 1], False), False)
sketch12.addGeometry(Part.BSplineCurve([App.Vector(38.192308, 17.338542, 0), App.Vector(38.193077, 17.391387, 0), App.Vector(38.194603, 17.496224, 0), App.Vector(38.218489, 17.65017, 0), App.Vector(38.251811, 17.799957, 0), App.Vector(38.300064, 17.943321, 0), App.Vector(38.360907, 18.082595, 0), App.Vector(38.437263, 18.215353, 0), App.Vector(38.525439, 18.344769, 0), App.Vector(38.663376, 18.508192, 0), App.Vector(38.863819, 18.696547, 0), App.Vector(39.148712, 18.880933, 0), App.Vector(39.472628, 19.029643, 0), App.Vector(39.707564, 19.092784, 0), App.Vector(39.828926, 19.125401, 0)], [4, 1, 1, 1, 1, 1, 1, 1, 1, 1, 1, 1, 4], [0, 0.723503378, 1.435336582, 2.130201219, 2.824764462, 3.504949994, 4.209866579, 4.920640069, 5.648298893, 7.13757748, 8.670694625, 10.280166878, 12], False, 3, [1, 1, 1, 1, 1, 1, 1, 1, 1, 1, 1, 1, 1, 1, 1], False), False)
sketch12.addGeometry(Part.BSplineCurve([App.Vector(41.016827, 15.525641, 0), App.Vector(40.925344, 15.526734, 0), App.Vector(40.749022, 15.528839, 0), App.Vector(40.494453, 15.535789, 0), App.Vector(40.259144, 15.551265, 0), App.Vector(40.042958, 15.576495, 0), App.Vector(39.843993, 15.602711, 0), App.Vector(39.664226, 15.638995, 0), App.Vector(39.50338, 15.680246, 0), App.Vector(39.3169, 15.744084, 0), App.Vector(39.106776, 15.843088, 0), App.Vector(38.880494, 15.993336, 0), App.Vector(38.677301, 16.169978, 0), App.Vector(38.506732, 16.376995, 0), App.Vector(38.365882, 16.600386, 0), App.Vector(38.267096, 16.838983, 0), App.Vector(38.203578, 17.085508, 0), App.Vector(38.196072, 17.254027, 0), App.Vector(38.192308, 17.338542, 0)], [4, 1, 1, 1, 1, 1, 1, 1, 1, 1, 1, 1, 1, 1, 1, 1, 4], [0, 1.159821618, 2.235403267, 3.228114831, 4.14795534, 4.994323282, 5.771256229, 6.471395042, 7.097801288, 8.267864287, 9.404187171, 10.531774336, 11.667624178, 12.792825787, 13.866573821, 14.930062559, 16], False, 3, [1, 1, 1, 1, 1, 1, 1, 1, 1, 1, 1, 1, 1, 1, 1, 1, 1, 1, 1], False), False)
sketch12.addGeometry(Part.LineSegment(App.Vector(41.016827, 15.525641, 0), App.Vector(42.294872, 15.525641, 0)), False)
sketch12.addGeometry(Part.LineSegment(App.Vector(42.294872, 15.525641, 0), App.Vector(42.294872, 19.24359, 0)), False)
sketch12.addConstraint(Sketcher.Constraint("Block", 3))
sketch12.addConstraint(Sketcher.Constraint("Block", 4))
sketch12.addConstraint(Sketcher.Constraint("Block", 5))
sketch12.addConstraint(Sketcher.Constraint("Block", 6))
sketch12.addConstraint(Sketcher.Constraint("Block", 8))
sketch12.addConstraint(Sketcher.Constraint("Block", 9))
sketch12.addConstraint(Sketcher.Constraint("Block", 13))
sketch12.addConstraint(Sketcher.Constraint("Block", 14))
sketch12.addConstraint(Sketcher.Constraint("Block", 15))
sketch12.addConstraint(Sketcher.Constraint("Coincident", 0, 2, 1, 1))
sketch12.addConstraint(Sketcher.Constraint("Coincident", 1, 2, 2, 1))
sketch12.addConstraint(Sketcher.Constraint("Coincident", 2, 2, 3, 2))
sketch12.addConstraint(Sketcher.Constraint("Coincident", 6, 1, 0, 1))
sketch12.addConstraint(Sketcher.Constraint("Coincident", 7, 2, 8, 2))
sketch12.addConstraint(Sketcher.Constraint("Coincident", 9, 1, 10, 1))
sketch12.addConstraint(Sketcher.Constraint("Coincident", 10, 2, 11, 1))
sketch12.addConstraint(Sketcher.Constraint("Coincident", 11, 2, 7, 1))
sketch12.addConstraint(Sketcher.Constraint("Coincident", 12, 2, 13, 2))
sketch12.addConstraint(Sketcher.Constraint("Coincident", 15, 1, 16, 1))
sketch12.addConstraint(Sketcher.Constraint("Coincident", 16, 2, 17, 1))
sketch12.addConstraint(Sketcher.Constraint("Coincident", 17, 2, 12, 1))
sketch12.addConstraint(Sketcher.Constraint("Horizontal", 0))
sketch12.addConstraint(Sketcher.Constraint("Vertical", 1))
sketch12.addConstraint(Sketcher.Constraint("Horizontal", 2))
sketch12.addConstraint(Sketcher.Constraint("Horizontal", 7))
sketch12.addConstraint(Sketcher.Constraint("Horizontal", 10))
sketch12.addConstraint(Sketcher.Constraint("Vertical", 11))
sketch12.addConstraint(Sketcher.Constraint("Horizontal", 12))
sketch12.addConstraint(Sketcher.Constraint("Horizontal", 16))
sketch12.addConstraint(Sketcher.Constraint("Vertical", 17))
sketch12.addConstraint(Sketcher.Constraint("Vertical", 11, 2, 16, 2))
sketch12.addConstraint(Sketcher.Constraint("DistanceX", 0, 1, 0, 2, 1.951122))
sketch12.addConstraint(Sketcher.Constraint("DistanceX", 7, 2, 7, 1, 1.217949))
pocket6 = doc.addObject("PartDesign::Pocket", "Pocket005")
body.addObject(pocket6)
pocket6.Profile = sketch12
pocket6.Length = 0.5
pocket6.Reversed = True

doc.recompute()
